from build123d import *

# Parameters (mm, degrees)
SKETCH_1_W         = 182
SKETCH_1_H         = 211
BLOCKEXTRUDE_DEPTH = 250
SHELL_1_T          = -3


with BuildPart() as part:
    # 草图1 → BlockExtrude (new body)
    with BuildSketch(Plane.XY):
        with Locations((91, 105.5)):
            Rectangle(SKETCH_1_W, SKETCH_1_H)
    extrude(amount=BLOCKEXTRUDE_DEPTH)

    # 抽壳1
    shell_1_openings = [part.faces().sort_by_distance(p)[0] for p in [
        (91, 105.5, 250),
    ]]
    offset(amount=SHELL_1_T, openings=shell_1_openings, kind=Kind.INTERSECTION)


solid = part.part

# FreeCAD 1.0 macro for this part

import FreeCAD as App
import Part
import Sketcher
from FreeCAD import Vector


def faces_at(feature, points):
    """Names of the faces that lie closest to the given points."""
    faces = feature.Shape.Faces
    near = lambda p: min(range(len(faces)), key=lambda i: faces[i].distToShape(Part.Vertex(*p))[0])
    return sorted({f"Face{near(p) + 1}" for p in points})


def add_polygon(sketch, points):
    """Adds a closed chain of lines whose ends are joined by coincident constraints."""
    first, n = sketch.GeometryCount, len(points)
    for a, b in zip(points, points[1:] + points[:1]):
        sketch.addGeometry(Part.LineSegment(App.Vector(*a, 0), App.Vector(*b, 0)), False)
    for i in range(n):
        sketch.addConstraint(Sketcher.Constraint("Coincident", first + i, 2, first + (i + 1) % n, 1))

doc = App.newDocument("Part")
body = doc.addObject("PartDesign::Body", "Body")

# Sketch on XY plane
sketch1 = body.newObject("Sketcher::SketchObject", "Sketch")
sketch1.AttachmentSupport = (doc.getObject("XY_Plane"), [""])
sketch1.MapMode = "FlatFace"
add_polygon(sketch1, [(0, 211), (0, 0), (182, 0), (182, 211)])  # lines 0-3
sketch1.addConstraint(Sketcher.Constraint("Vertical", 0))
sketch1.addConstraint(Sketcher.Constraint("Horizontal", 1))
sketch1.addConstraint(Sketcher.Constraint("Vertical", 2))
sketch1.addConstraint(Sketcher.Constraint("Horizontal", 3))
sketch1.addConstraint(Sketcher.Constraint("Coincident", 0, 2, -1, 1))
sketch1.addConstraint(Sketcher.Constraint("DistanceX", 1, 1, 1, 2, 182.0))
sketch1.addConstraint(Sketcher.Constraint("DistanceY", 0, 2, 0, 1, 211.0))
pad1 = body.newObject("PartDesign::Pad", "Pad")
pad1.Profile = sketch1
pad1.Length = 250
doc.recompute()

thickness = body.newObject("PartDesign::Thickness", "Thickness")
thickness.Base = (pad1, faces_at(pad1, [(91, 105.5, 250)]))
thickness.Value = 3
thickness.Reversed = True
thickness.Join = "Intersection"

doc.recompute()
